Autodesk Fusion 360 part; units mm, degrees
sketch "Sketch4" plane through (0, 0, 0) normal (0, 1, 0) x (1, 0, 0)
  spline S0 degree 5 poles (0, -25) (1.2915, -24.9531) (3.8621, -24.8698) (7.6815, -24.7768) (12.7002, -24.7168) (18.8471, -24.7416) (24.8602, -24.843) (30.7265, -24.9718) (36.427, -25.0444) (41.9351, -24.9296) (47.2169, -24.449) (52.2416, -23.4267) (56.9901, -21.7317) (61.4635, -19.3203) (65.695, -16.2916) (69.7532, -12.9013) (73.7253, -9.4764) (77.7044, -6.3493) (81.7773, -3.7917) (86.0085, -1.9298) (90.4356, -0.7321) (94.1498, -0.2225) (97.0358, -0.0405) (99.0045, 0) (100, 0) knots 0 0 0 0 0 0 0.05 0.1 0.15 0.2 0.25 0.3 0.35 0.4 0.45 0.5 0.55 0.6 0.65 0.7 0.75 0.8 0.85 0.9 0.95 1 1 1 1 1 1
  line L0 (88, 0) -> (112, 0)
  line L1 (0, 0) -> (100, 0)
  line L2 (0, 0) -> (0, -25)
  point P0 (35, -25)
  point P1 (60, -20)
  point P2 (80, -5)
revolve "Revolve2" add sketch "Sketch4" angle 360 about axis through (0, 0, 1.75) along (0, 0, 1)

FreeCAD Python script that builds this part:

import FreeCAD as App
import Part
import Sketcher
from FreeCAD import Vector

doc = App.newDocument("Part")
body = doc.addObject("PartDesign::Body", "Body")

# Sketch on XZ plane
sketch1 = body.newObject("Sketcher::SketchObject", "Sketch")
sketch1.AttachmentSupport = (doc.getObject("XZ_Plane"), [""])
sketch1.MapMode = "FlatFace"
sketch1.addGeometry(Part.LineSegment(Vector(0, 0, 0), Vector(0, 25, 0)), False)
sketch1.addGeometry(Part.BSplineCurve([Vector(0, 25, 0), Vector(1.2915, 24.9531, 0), Vector(3.8621, 24.8698, 0), Vector(7.6815, 24.7768, 0), Vector(12.7002, 24.7168, 0), Vector(18.8471, 24.7416, 0), Vector(24.8602, 24.843, 0), Vector(30.7265, 24.9718, 0), Vector(36.427, 25.0444, 0), Vector(41.9351, 24.9296, 0), Vector(47.2169, 24.449, 0), Vector(52.2416, 23.4267, 0), Vector(56.9901, 21.7317, 0), Vector(61.4635, 19.3203, 0), Vector(65.695, 16.2916, 0), Vector(69.7532, 12.9013, 0), Vector(73.7253, 9.4764, 0), Vector(77.7044, 6.3493, 0), Vector(81.7773, 3.7917, 0), Vector(86.0085, 1.9298, 0), Vector(90.4356, 0.7321, 0), Vector(94.1498, 0.2225, 0), Vector(97.0358, 0.0405, 0), Vector(99.0045, 0, 0), Vector(100, 0, 0)], [6, 1, 1, 1, 1, 1, 1, 1, 1, 1, 1, 1, 1, 1, 1, 1, 1, 1, 1, 1, 6], [0, 0.05, 0.1, 0.15, 0.2, 0.25, 0.3, 0.35, 0.4, 0.45, 0.5, 0.55, 0.6, 0.65, 0.7, 0.75, 0.8, 0.85, 0.9, 0.95, 1], False, 5, [1, 1, 1, 1, 1, 1, 1, 1, 1, 1, 1, 1, 1, 1, 1, 1, 1, 1, 1, 1, 1, 1, 1, 1, 1], False), False)
sketch1.addGeometry(Part.LineSegment(Vector(100, 0, 0), Vector(0, 0, 0)), False)
sketch1.addConstraint(Sketcher.Constraint("Block", 1))
sketch1.addConstraint(Sketcher.Constraint("Coincident", 0, 2, 1, 1))
sketch1.addConstraint(Sketcher.Constraint("Coincident", 1, 2, 2, 1))
sketch1.addConstraint(Sketcher.Constraint("Coincident", 2, 2, 0, 1))
sketch1.addConstraint(Sketcher.Constraint("Vertical", 0))
sketch1.addConstraint(Sketcher.Constraint("Horizontal", 2))
revolution = body.newObject("PartDesign::Revolution", "Revolution")
revolution.Profile = sketch1
revolution.ReferenceAxis = (sketch1, ["V_Axis"])
revolution.Angle = 360

doc.recompute()
